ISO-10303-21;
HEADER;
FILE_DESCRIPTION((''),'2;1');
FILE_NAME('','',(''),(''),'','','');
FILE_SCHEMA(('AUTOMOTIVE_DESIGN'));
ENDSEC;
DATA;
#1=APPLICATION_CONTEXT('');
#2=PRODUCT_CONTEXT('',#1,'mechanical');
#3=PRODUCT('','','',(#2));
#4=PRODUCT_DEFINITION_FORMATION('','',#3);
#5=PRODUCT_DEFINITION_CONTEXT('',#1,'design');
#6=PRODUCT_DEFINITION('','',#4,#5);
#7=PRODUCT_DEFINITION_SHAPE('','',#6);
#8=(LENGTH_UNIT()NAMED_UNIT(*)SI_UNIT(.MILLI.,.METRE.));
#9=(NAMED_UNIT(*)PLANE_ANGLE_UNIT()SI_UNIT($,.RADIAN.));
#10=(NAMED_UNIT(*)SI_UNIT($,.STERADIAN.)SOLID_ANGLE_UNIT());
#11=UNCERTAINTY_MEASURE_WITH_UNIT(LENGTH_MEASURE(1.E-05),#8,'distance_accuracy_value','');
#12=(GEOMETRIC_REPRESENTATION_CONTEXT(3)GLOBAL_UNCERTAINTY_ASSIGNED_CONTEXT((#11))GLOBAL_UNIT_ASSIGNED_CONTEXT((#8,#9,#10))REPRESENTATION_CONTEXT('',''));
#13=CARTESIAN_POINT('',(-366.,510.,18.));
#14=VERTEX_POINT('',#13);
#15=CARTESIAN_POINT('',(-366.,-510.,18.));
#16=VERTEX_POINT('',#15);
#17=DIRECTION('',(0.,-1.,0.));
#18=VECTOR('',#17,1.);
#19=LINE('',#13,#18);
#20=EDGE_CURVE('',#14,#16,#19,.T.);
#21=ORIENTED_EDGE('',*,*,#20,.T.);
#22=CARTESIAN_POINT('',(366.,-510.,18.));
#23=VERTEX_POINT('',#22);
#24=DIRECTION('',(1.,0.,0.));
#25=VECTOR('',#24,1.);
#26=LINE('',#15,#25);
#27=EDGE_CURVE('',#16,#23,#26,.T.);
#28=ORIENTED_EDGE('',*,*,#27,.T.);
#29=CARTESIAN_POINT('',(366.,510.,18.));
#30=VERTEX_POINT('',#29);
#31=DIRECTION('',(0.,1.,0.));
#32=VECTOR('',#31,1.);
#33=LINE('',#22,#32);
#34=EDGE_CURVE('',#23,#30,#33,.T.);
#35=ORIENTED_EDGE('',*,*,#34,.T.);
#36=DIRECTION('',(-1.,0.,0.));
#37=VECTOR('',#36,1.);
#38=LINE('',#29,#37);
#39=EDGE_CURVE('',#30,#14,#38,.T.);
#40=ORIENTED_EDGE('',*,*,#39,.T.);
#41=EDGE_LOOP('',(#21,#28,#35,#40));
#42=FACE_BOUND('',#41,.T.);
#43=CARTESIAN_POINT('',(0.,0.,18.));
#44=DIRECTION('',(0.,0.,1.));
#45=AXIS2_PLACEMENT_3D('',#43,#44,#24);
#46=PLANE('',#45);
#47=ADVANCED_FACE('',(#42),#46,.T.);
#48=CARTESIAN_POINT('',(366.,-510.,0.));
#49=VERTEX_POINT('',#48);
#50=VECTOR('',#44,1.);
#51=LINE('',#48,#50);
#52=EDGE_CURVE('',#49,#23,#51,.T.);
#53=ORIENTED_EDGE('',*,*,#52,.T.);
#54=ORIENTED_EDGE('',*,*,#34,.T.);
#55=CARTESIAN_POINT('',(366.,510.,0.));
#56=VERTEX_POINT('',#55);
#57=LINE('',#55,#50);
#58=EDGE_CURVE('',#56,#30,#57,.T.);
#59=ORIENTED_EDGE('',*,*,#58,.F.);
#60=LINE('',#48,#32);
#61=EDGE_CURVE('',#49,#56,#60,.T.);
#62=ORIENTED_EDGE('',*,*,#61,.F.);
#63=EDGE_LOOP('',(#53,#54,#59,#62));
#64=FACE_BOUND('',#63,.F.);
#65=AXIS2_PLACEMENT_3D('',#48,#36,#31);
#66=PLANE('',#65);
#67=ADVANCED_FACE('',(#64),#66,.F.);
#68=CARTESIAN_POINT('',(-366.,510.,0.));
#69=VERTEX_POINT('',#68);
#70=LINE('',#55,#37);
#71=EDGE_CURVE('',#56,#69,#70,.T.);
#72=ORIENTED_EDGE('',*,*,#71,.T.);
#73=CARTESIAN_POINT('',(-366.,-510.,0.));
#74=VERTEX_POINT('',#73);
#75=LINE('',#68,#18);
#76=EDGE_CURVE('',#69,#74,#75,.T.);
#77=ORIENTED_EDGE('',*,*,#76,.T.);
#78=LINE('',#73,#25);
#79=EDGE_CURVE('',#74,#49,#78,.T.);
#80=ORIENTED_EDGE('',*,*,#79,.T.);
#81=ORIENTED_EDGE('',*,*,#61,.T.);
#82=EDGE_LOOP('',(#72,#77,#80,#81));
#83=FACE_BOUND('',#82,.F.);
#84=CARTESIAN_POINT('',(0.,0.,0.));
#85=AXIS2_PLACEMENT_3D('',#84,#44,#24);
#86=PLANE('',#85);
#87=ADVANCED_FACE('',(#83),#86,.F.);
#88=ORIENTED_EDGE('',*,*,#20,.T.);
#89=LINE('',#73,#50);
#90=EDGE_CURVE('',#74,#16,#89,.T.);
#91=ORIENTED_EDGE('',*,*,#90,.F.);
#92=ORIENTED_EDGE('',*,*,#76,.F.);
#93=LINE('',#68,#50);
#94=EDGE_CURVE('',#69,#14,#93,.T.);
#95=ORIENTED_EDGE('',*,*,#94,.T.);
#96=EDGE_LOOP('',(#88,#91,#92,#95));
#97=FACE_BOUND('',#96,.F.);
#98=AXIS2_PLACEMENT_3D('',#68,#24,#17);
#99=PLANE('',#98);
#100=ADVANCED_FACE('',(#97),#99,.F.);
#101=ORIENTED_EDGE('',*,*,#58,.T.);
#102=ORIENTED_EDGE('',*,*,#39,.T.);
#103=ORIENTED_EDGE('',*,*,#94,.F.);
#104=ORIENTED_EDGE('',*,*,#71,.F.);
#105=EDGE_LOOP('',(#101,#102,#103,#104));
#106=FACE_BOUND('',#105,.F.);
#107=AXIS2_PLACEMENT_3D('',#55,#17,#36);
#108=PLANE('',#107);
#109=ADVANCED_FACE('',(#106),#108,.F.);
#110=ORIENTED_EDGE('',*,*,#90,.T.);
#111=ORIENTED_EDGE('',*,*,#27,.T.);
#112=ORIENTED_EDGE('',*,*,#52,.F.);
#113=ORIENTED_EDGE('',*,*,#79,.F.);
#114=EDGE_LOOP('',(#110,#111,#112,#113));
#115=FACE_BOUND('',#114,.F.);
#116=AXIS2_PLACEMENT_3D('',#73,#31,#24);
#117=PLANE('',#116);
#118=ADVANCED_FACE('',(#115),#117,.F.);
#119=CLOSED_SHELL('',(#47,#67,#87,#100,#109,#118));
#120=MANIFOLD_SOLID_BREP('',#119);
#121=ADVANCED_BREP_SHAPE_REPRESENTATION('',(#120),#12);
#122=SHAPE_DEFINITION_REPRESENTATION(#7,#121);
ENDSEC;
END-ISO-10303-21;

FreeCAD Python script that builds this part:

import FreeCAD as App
import Part
import Sketcher
from FreeCAD import Vector

doc = App.newDocument("Part")
params = doc.addObject("Spreadsheet::Sheet", "Params")
for row, (alias, value) in enumerate([
    ("sketch1_width", "732 mm"),
    ("sketch1_height", "1020 mm"),
    ("pad1_length", "18 mm"),
], start=1):
    params.set(f"A{row}", alias)
    params.set(f"B{row}", "=" + value)
    params.setAlias(f"B{row}", alias)

body = doc.addObject("PartDesign::Body", "Body")

sketch1 = doc.addObject("Sketcher::SketchObject", "Sketch")
body.addObject(sketch1)
sketch1.AttachmentSupport = (doc.XY_Plane, [""])
sketch1.MapMode = "FlatFace"
sketch1.addGeometry([
    Part.LineSegment(Vector(-366, 510, 0), Vector(-366, -510, 0)),
    Part.LineSegment(Vector(-366, -510, 0), Vector(366, -510, 0)),
    Part.LineSegment(Vector(366, -510, 0), Vector(366, 510, 0)),
    Part.LineSegment(Vector(366, 510, 0), Vector(-366, 510, 0)),
], False)
sketch1.addConstraint([
    Sketcher.Constraint("Coincident", 0, 2, 1, 1),
    Sketcher.Constraint("Coincident", 1, 2, 2, 1),
    Sketcher.Constraint("Coincident", 2, 2, 3, 1),
    Sketcher.Constraint("Coincident", 3, 2, 0, 1),
    Sketcher.Constraint("Vertical", 0),
    Sketcher.Constraint("Horizontal", 1),
    Sketcher.Constraint("Vertical", 2),
    Sketcher.Constraint("Horizontal", 3),
    Sketcher.Constraint("Symmetric", 0, 2, 2, 2, -1, 1),
    Sketcher.Constraint("DistanceX", 1, 1, 1, 2, 732.0),
    Sketcher.Constraint("DistanceY", 0, 2, 0, 1, 1020.0),
])
sketch1.setExpression("Constraints[9]", "Params.sketch1_width")
sketch1.setExpression("Constraints[10]", "Params.sketch1_height")
pad1 = doc.addObject("PartDesign::Pad", "Pad")
body.addObject(pad1)
pad1.Profile = sketch1
pad1.setExpression("Length", "Params.pad1_length")

doc.recompute()
